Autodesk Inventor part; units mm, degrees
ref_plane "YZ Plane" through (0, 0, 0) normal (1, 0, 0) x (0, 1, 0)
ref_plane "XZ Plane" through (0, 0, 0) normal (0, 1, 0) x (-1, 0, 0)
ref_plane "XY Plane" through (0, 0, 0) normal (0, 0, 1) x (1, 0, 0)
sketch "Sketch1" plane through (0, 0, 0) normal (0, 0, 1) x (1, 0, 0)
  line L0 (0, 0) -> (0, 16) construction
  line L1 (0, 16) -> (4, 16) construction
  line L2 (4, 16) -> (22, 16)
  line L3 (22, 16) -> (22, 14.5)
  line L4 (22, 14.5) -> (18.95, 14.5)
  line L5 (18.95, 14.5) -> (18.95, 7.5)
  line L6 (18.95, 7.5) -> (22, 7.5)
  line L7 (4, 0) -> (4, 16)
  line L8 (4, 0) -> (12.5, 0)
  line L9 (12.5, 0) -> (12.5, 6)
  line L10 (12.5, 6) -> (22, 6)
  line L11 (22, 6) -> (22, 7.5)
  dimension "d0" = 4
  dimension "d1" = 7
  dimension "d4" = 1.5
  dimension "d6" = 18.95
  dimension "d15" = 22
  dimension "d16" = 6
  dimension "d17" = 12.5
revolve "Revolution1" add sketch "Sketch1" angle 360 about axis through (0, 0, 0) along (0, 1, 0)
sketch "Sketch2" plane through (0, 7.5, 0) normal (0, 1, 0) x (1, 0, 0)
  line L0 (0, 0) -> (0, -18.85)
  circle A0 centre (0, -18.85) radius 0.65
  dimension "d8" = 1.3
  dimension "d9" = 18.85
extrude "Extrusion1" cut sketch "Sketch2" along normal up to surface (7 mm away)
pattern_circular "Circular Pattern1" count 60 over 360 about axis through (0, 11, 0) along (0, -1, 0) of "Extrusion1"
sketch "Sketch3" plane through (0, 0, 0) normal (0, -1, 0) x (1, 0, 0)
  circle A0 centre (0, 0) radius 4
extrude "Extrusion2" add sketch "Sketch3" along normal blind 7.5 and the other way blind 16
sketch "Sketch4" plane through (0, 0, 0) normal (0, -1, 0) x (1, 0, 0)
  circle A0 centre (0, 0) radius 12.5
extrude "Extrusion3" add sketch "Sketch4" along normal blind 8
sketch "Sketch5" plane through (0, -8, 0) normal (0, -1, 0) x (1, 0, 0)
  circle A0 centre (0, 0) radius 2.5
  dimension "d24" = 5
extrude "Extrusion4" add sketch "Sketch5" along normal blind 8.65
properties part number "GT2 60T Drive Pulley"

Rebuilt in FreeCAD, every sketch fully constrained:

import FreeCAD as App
import Part
import Sketcher

V = App.Vector
Q = App.Units.Quantity


def add_polygon(sketch, points):
    """Adds a closed chain of lines whose ends are joined by coincident constraints."""
    first, n = sketch.GeometryCount, len(points)
    for a, b in zip(points, points[1:] + points[:1]):
        sketch.addGeometry(Part.LineSegment(App.Vector(*a, 0), App.Vector(*b, 0)), False)
    for i in range(n):
        sketch.addConstraint(Sketcher.Constraint("Coincident", first + i, 2, first + (i + 1) % n, 1))

doc = App.newDocument("Part")
params = doc.addObject("Spreadsheet::Sheet", "Params")
for row, (alias, value) in enumerate([
    ("sketch1_height", "6 mm"),
    ("sketch1_height2", "7 mm"),
    ("sketch1_height3", "1.5 mm"),
    ("revolution_angle", "360 deg"),
    ("sketch2_diameter", "1.3 mm"),
    ("pocket1_length", "7 mm"),
    ("sketch3_diameter", "8 mm"),
    ("pad1_length", "7.5 mm"),
    ("pad1_length2", "16 mm"),
    ("sketch4_diameter", "25 mm"),
    ("pad2_length", "8 mm"),
    ("sketch5_diameter", "5 mm"),
    ("pad3_length", "8.65 mm"),
], start=1):
    params.set(f"A{row}", alias)
    params.set(f"B{row}", "=" + value)
    params.setAlias(f"B{row}", alias)

body = doc.addObject("PartDesign::Body", "Body")

# Sketch on XY plane
sketch1 = doc.addObject("Sketcher::SketchObject", "Sketch")
body.addObject(sketch1)
sketch1.AttachmentSupport = (doc.XY_Plane, [""])
sketch1.MapMode = "FlatFace"
add_polygon(sketch1, [(22, 16), (4, 16), (4, 0), (12.5, 0), (12.5, 6), (22, 6), (22, 7.5), (18.9, 7.5), (18.9, 14.5), (22, 14.5)])  # lines 0-9
sketch1.addConstraint(Sketcher.Constraint("Horizontal", 0))
sketch1.addConstraint(Sketcher.Constraint("Vertical", 1))
sketch1.addConstraint(Sketcher.Constraint("Horizontal", 2))
sketch1.addConstraint(Sketcher.Constraint("Vertical", 3))
sketch1.addConstraint(Sketcher.Constraint("Horizontal", 4))
sketch1.addConstraint(Sketcher.Constraint("Vertical", 5))
sketch1.addConstraint(Sketcher.Constraint("Horizontal", 6))
sketch1.addConstraint(Sketcher.Constraint("Vertical", 7))
sketch1.addConstraint(Sketcher.Constraint("Horizontal", 8))
sketch1.addConstraint(Sketcher.Constraint("Vertical", 9))
sketch1.addConstraint(Sketcher.Constraint("PointOnObject", 1, 2, -1))
sketch1.addConstraint(Sketcher.Constraint("Vertical", 5, 2, 8, 2))
sketch1.addConstraint(Sketcher.Constraint("Equal", 5, 9))
sketch1.addConstraint(Sketcher.Constraint("DistanceY", 3, 1, 3, 2, Q("6 mm")))
sketch1.addConstraint(Sketcher.Constraint("DistanceY", 7, 1, 7, 2, Q("7 mm")))
sketch1.addConstraint(Sketcher.Constraint("DistanceY", 5, 1, 5, 2, Q("1.5 mm")))
sketch1.addConstraint(Sketcher.Constraint("DistanceX", -1, 1, 0, 2, Q("4 mm")))
sketch1.addConstraint(Sketcher.Constraint("DistanceX", -1, 1, 4, 2, Q("22 mm")))
sketch1.addConstraint(Sketcher.Constraint("DistanceX", -1, 1, 2, 2, Q("12.5 mm")))
sketch1.addConstraint(Sketcher.Constraint("DistanceX", -1, 1, 6, 2, Q("18.95 mm")))
sketch1.setExpression("Constraints[23]", "Params.sketch1_height")
sketch1.setExpression("Constraints[24]", "Params.sketch1_height2")
sketch1.setExpression("Constraints[25]", "Params.sketch1_height3")
revolution = doc.addObject("PartDesign::Revolution", "Revolution")
body.addObject(revolution)
revolution.Profile = sketch1
revolution.ReferenceAxis = (sketch1, ["V_Axis"])
revolution.setExpression("Angle", "Params.revolution_angle")

# Sketch on XZ plane
sketch2 = doc.addObject("Sketcher::SketchObject", "Sketch001")
body.addObject(sketch2)
sketch2.AttachmentSupport = (doc.XZ_Plane, [""])
sketch2.MapMode = "FlatFace"
sketch2.AttachmentOffset = App.Placement(V(0, 0, -7.5), App.Rotation())
sketch2.addGeometry(Part.Circle(V(0, 18.9, 0), V(0, 0, 1), 0.7), False)
sketch2.addConstraint(Sketcher.Constraint("PointOnObject", 0, 3, -2))
sketch2.addConstraint(Sketcher.Constraint("Diameter", 0, Q("1.3 mm")))
sketch2.addConstraint(Sketcher.Constraint("DistanceY", -1, 1, 0, 3, Q("18.85 mm")))
sketch2.setExpression("Constraints[1]", "Params.sketch2_diameter")
pocket1 = doc.addObject("PartDesign::Pocket", "Pocket")
body.addObject(pocket1)
pocket1.Profile = sketch2
pocket1.setExpression("Length", "Params.pocket1_length")
doc.recompute()

polarpattern = doc.addObject("PartDesign::PolarPattern", "PolarPattern")
body.addObject(polarpattern)
polarpattern.Originals = [pocket1]
polarpattern.Axis = (doc.Y_Axis, [""])
polarpattern.Angle = 360
polarpattern.Occurrences = 60
body.Tip = polarpattern

# Sketch on XZ plane
sketch3 = doc.addObject("Sketcher::SketchObject", "Sketch002")
body.addObject(sketch3)
sketch3.AttachmentSupport = (doc.XZ_Plane, [""])
sketch3.MapMode = "FlatFace"
sketch3.addGeometry(Part.Circle(V(0, 0, 0), V(0, 0, 1), 4), False)
sketch3.addConstraint(Sketcher.Constraint("Coincident", 0, 3, -1, 1))
sketch3.addConstraint(Sketcher.Constraint("Diameter", 0, Q("8 mm")))
sketch3.setExpression("Constraints[1]", "Params.sketch3_diameter")
pad1 = doc.addObject("PartDesign::Pad", "Pad")
body.addObject(pad1)
pad1.Profile = sketch3
pad1.Type = "TwoLengths"
pad1.setExpression("Length", "Params.pad1_length")
pad1.setExpression("Length2", "Params.pad1_length2")

# Sketch on XZ plane
sketch4 = doc.addObject("Sketcher::SketchObject", "Sketch003")
body.addObject(sketch4)
sketch4.AttachmentSupport = (doc.XZ_Plane, [""])
sketch4.MapMode = "FlatFace"
sketch4.addGeometry(Part.Circle(V(0, 0, 0), V(0, 0, 1), 12), False)
sketch4.addConstraint(Sketcher.Constraint("Coincident", 0, 3, -1, 1))
sketch4.addConstraint(Sketcher.Constraint("Diameter", 0, Q("25 mm")))
sketch4.setExpression("Constraints[1]", "Params.sketch4_diameter")
pad2 = doc.addObject("PartDesign::Pad", "Pad001")
body.addObject(pad2)
pad2.Profile = sketch4
pad2.setExpression("Length", "Params.pad2_length")

# Sketch on XZ plane
sketch5 = doc.addObject("Sketcher::SketchObject", "Sketch004")
body.addObject(sketch5)
sketch5.AttachmentSupport = (doc.XZ_Plane, [""])
sketch5.MapMode = "FlatFace"
sketch5.AttachmentOffset = App.Placement(V(0, 0, 8), App.Rotation())
sketch5.addGeometry(Part.Circle(V(0, 0, 0), V(0, 0, 1), 2.5), False)
sketch5.addConstraint(Sketcher.Constraint("Coincident", 0, 3, -1, 1))
sketch5.addConstraint(Sketcher.Constraint("Diameter", 0, Q("5 mm")))
sketch5.setExpression("Constraints[1]", "Params.sketch5_diameter")
pad3 = doc.addObject("PartDesign::Pad", "Pad002")
body.addObject(pad3)
pad3.Profile = sketch5
pad3.setExpression("Length", "Params.pad3_length")

doc.recompute()
